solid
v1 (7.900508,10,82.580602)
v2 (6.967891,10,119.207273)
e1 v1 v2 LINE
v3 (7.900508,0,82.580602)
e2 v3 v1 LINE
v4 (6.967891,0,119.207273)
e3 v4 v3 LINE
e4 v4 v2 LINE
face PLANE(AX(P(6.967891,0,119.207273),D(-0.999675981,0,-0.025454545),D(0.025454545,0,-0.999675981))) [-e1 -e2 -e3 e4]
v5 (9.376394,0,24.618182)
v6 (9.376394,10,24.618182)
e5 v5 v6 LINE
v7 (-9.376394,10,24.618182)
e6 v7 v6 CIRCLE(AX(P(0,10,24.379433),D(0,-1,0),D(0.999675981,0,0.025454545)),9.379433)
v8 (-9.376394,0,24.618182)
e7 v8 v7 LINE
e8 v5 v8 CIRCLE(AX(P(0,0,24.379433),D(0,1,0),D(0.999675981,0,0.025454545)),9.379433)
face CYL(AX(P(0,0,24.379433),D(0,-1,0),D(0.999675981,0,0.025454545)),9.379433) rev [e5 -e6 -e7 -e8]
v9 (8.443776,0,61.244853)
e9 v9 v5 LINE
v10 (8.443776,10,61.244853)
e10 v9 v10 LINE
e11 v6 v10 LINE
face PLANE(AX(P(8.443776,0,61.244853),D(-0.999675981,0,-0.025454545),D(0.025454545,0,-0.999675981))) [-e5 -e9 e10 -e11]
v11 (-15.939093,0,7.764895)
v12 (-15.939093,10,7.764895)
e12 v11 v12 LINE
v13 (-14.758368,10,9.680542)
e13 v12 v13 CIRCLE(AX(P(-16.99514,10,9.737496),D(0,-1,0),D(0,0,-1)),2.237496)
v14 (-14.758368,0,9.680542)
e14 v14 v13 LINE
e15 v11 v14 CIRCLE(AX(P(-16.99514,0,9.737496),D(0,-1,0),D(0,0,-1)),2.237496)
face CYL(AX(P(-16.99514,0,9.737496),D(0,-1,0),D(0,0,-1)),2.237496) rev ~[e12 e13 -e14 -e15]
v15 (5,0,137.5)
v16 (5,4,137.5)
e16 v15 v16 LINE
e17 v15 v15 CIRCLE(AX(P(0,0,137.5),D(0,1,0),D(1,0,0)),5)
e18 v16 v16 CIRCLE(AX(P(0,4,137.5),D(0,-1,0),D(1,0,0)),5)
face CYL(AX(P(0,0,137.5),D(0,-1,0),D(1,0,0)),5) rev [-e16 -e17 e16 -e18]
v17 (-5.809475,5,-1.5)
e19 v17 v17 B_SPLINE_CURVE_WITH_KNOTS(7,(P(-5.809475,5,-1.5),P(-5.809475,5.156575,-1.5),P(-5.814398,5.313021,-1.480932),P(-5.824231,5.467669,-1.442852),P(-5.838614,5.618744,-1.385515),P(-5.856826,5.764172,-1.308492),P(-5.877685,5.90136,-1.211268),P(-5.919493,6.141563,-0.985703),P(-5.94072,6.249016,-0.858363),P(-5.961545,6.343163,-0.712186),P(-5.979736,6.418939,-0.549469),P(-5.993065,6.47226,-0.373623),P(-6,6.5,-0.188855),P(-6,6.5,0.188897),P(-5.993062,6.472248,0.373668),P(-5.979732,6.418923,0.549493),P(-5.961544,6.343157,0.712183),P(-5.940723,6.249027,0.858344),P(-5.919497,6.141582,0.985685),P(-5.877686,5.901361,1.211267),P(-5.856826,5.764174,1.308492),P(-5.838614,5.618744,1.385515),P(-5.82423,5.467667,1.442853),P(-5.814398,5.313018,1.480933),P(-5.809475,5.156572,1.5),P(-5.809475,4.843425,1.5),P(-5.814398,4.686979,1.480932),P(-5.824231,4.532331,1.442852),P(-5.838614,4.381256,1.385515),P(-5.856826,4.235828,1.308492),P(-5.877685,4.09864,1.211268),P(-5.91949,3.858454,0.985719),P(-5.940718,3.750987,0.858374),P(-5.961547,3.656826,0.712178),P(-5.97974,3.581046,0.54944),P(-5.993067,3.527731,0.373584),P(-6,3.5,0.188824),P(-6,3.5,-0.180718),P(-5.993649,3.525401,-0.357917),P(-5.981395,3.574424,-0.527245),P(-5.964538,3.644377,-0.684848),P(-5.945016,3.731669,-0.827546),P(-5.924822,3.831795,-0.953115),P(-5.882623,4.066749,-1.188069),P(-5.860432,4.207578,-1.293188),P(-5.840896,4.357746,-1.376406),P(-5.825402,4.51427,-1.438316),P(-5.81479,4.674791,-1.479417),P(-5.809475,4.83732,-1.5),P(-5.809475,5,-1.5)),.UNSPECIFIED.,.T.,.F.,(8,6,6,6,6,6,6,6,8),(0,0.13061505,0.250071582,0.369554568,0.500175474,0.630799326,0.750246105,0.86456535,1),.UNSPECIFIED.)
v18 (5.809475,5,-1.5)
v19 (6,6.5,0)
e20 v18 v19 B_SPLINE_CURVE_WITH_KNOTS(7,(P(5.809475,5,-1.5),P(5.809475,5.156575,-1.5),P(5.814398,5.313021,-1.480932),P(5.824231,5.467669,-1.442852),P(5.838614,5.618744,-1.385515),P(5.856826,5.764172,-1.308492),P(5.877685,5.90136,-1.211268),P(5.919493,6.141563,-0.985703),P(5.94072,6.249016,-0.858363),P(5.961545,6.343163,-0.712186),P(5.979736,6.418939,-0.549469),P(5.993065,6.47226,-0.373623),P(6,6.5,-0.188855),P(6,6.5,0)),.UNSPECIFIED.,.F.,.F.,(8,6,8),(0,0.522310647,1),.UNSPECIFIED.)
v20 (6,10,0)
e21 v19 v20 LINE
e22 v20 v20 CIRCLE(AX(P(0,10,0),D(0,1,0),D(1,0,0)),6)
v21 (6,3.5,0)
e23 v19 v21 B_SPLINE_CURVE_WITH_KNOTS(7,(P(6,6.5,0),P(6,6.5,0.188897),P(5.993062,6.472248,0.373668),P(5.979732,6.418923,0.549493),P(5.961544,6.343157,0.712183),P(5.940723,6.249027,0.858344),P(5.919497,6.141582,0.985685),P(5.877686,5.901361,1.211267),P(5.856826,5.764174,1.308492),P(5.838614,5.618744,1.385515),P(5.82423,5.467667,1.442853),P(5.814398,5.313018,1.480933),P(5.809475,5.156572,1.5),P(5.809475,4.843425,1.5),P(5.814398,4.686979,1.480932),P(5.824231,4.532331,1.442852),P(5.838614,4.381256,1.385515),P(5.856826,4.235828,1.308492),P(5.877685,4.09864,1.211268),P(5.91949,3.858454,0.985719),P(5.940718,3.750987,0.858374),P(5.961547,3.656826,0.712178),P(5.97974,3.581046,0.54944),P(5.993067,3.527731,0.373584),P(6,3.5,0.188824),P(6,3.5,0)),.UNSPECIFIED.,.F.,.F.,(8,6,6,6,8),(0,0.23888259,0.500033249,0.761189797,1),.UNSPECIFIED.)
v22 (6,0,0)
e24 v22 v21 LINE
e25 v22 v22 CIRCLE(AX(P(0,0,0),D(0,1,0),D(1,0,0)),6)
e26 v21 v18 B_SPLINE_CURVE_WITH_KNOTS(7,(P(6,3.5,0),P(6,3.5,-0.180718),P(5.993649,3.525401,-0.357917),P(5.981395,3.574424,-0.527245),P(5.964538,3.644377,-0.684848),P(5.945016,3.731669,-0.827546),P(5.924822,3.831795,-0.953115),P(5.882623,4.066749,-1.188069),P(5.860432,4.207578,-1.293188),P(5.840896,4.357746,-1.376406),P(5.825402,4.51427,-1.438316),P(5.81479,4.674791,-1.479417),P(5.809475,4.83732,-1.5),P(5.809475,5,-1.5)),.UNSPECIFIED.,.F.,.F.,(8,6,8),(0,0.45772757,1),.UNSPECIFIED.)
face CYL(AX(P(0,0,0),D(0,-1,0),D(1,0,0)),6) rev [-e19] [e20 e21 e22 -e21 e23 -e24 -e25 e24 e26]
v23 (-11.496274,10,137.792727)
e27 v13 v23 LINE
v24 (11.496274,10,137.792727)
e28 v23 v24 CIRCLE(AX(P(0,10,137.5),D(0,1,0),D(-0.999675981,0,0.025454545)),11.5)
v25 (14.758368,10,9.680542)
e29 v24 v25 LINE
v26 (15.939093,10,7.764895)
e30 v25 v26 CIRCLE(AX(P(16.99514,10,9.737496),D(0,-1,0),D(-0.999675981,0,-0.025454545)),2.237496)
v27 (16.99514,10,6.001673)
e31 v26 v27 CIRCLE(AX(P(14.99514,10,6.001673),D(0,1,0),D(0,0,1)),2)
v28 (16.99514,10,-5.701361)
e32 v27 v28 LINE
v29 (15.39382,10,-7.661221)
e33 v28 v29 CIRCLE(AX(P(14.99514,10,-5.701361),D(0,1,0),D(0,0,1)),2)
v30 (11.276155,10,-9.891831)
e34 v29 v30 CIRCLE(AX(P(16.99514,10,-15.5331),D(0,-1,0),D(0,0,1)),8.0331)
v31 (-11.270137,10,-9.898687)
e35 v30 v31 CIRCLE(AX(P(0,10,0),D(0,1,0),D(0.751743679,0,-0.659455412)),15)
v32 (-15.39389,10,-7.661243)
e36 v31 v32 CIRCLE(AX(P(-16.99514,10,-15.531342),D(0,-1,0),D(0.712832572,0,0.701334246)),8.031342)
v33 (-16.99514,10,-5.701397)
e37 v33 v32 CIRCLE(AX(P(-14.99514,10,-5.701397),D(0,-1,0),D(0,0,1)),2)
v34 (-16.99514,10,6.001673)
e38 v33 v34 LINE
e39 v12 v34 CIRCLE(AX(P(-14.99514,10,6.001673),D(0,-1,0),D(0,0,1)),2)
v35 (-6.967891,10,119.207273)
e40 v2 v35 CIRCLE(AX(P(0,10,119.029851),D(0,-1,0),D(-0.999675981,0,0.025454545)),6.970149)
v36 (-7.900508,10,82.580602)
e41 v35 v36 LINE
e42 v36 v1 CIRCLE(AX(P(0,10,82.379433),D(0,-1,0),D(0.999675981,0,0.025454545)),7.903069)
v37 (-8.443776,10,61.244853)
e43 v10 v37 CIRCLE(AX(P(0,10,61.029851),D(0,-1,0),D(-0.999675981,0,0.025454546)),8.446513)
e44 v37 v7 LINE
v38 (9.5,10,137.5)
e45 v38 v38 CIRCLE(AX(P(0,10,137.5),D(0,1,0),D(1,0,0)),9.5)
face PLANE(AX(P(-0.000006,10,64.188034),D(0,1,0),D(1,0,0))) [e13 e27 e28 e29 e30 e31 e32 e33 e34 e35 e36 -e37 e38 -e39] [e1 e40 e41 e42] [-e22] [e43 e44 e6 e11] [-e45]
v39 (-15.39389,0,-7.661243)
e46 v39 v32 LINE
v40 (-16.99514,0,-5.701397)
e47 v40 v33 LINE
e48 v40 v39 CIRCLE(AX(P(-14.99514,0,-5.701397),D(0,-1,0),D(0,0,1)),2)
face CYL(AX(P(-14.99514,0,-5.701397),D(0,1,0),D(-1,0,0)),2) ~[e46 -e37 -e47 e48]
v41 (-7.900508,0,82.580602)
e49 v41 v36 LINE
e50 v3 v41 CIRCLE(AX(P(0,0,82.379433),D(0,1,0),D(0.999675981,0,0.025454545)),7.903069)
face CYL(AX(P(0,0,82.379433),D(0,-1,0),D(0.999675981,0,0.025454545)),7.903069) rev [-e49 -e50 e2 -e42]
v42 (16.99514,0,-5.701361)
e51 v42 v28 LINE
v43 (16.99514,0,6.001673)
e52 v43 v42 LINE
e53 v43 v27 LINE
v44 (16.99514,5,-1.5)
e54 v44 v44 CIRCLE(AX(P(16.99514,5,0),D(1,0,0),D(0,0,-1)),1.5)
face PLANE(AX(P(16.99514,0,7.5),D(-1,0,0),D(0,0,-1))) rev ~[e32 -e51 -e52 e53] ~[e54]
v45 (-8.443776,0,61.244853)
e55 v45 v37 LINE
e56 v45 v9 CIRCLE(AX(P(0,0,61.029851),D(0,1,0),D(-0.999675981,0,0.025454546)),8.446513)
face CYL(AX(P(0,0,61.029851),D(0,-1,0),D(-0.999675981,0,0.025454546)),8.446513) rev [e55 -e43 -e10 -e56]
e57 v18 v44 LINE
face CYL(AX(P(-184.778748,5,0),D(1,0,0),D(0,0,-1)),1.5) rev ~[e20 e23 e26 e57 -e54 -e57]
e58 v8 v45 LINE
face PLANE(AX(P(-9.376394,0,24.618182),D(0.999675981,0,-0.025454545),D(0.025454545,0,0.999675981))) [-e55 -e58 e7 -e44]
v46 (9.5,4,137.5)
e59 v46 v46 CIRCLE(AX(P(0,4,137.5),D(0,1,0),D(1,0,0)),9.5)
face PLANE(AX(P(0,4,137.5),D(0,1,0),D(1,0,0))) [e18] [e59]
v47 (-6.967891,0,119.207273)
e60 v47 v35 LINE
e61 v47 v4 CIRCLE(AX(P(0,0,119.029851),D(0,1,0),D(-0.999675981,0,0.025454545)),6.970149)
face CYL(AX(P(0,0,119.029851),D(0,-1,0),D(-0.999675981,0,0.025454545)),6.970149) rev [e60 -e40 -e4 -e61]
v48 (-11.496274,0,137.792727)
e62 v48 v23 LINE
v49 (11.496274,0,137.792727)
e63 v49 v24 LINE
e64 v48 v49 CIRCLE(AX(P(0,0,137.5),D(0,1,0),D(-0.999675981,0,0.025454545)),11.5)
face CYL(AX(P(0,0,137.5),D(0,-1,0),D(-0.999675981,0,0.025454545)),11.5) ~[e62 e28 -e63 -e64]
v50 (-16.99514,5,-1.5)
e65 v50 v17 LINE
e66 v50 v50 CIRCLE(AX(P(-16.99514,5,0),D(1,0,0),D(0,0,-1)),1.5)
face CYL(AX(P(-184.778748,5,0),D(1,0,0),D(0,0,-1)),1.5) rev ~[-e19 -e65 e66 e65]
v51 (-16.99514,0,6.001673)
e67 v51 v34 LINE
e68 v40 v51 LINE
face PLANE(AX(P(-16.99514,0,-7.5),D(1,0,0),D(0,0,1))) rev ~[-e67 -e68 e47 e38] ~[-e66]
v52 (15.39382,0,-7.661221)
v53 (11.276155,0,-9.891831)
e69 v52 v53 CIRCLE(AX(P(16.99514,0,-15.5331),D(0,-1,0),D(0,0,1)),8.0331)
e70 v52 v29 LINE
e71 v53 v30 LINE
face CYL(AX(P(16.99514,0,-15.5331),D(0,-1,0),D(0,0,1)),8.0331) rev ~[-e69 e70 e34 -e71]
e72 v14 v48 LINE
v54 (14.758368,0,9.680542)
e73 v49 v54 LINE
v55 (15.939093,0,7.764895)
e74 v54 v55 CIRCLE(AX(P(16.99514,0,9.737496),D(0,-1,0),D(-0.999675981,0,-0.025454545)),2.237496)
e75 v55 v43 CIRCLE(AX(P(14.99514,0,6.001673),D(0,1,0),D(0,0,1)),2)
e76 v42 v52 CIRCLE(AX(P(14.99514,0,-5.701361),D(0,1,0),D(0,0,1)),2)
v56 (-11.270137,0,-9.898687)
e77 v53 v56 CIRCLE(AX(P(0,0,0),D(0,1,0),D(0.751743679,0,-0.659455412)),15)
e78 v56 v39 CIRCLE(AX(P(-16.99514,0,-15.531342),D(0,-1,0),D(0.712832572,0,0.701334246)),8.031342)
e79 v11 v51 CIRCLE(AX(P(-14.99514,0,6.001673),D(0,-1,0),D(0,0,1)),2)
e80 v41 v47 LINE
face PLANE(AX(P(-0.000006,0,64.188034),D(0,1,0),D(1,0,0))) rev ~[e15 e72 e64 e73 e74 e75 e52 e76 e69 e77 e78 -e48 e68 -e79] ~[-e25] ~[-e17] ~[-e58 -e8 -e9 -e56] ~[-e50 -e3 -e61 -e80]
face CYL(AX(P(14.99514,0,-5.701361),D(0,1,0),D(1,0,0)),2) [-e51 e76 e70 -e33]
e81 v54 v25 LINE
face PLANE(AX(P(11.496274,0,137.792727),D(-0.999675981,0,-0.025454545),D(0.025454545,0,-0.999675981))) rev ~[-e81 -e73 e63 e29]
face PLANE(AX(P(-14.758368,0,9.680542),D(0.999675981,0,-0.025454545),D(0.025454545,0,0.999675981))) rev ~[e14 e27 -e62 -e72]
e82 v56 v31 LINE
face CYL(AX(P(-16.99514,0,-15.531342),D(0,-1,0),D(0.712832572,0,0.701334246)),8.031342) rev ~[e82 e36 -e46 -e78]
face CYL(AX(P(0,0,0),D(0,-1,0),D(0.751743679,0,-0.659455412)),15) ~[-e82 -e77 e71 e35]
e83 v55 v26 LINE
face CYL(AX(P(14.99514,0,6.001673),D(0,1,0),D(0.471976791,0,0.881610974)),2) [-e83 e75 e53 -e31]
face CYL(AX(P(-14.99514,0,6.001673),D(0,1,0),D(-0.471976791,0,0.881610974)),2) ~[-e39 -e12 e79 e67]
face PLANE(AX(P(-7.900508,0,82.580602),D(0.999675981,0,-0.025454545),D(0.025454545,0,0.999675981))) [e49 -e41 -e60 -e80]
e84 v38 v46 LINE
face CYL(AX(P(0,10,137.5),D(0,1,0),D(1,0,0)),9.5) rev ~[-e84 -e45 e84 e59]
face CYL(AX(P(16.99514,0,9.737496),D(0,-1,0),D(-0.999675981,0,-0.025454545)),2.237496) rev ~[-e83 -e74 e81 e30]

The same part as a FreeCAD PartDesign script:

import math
import FreeCAD as App
import Part
import Sketcher


def edges_at(feature, points):
    """Names of the edges that pass closest to the given points."""
    edges = feature.Shape.Edges
    near = lambda p: min(range(len(edges)), key=lambda i: edges[i].distToShape(Part.Vertex(*p))[0])
    return sorted({f"Edge{near(p) + 1}" for p in points})

doc = App.newDocument("Part")
body = doc.addObject("PartDesign::Body", "Body")

# Sketch on XZ plane
sketch1 = body.newObject("Sketcher::SketchObject", "Sketch")
sketch1.AttachmentSupport = (doc.getObject("XZ_Plane"), [""])
sketch1.MapMode = "FlatFace"
sketch1.addGeometry([
    Part.LineSegment(App.Vector(-14.8, 9.7, 0), App.Vector(-11.5, 137.8, 0)),  # 0
    Part.ArcOfCircle(Part.Circle(App.Vector(0, 137.5, 0), App.Vector(0, 0, 1), 11.5), math.radians(1), math.radians(179)),  # 1
    Part.LineSegment(App.Vector(11.5, 137.8, 0), App.Vector(14.8, 9.7, 0)),  # 2
    Part.ArcOfCircle(Part.Circle(App.Vector(17, 9.7, 0), App.Vector(0, 0, 1), 2.2), math.radians(-179), math.radians(-90)),  # 3
    Part.LineSegment(App.Vector(17, 7.5, 0), App.Vector(17, -7.5, 0)),  # 4
    Part.ArcOfCircle(Part.Circle(App.Vector(17, -15.5, 0), App.Vector(0, 0, 1), 8), math.radians(90), math.radians(135)),  # 5
    Part.ArcOfCircle(Part.Circle(App.Vector(0, 0, 0), App.Vector(0, 0, 1), 15), math.radians(-139), math.radians(-41)),  # 6
    Part.ArcOfCircle(Part.Circle(App.Vector(-17, -15.5, 0), App.Vector(0, 0, 1), 8), math.radians(45), math.radians(90)),  # 7
    Part.LineSegment(App.Vector(-17, -7.5, 0), App.Vector(-17, 7.5, 0)),  # 8
    Part.ArcOfCircle(Part.Circle(App.Vector(-17, 9.7, 0), App.Vector(0, 0, 1), 2.2), math.radians(-90), math.radians(-1)),  # 9
    Part.Circle(App.Vector(0, 137.5, 0), App.Vector(0, 0, 1), 5),  # 10
    Part.Circle(App.Vector(0, 0, 0), App.Vector(0, 0, 1), 6),  # 11
], False)
sketch1.addConstraint([
    Sketcher.Constraint("Tangent", 0, 2, 1, 2),
    Sketcher.Constraint("Tangent", 1, 1, 2, 1),
    Sketcher.Constraint("Tangent", 2, 2, 3, 1),
    Sketcher.Constraint("Coincident", 3, 2, 4, 1),
    Sketcher.Constraint("Coincident", 4, 2, 5, 1),
    Sketcher.Constraint("Coincident", 5, 2, 6, 2),
    Sketcher.Constraint("Coincident", 6, 1, 7, 1),
    Sketcher.Constraint("Coincident", 7, 2, 8, 1),
    Sketcher.Constraint("Coincident", 8, 2, 9, 1),
    Sketcher.Constraint("Tangent", 9, 2, 0, 1),
    Sketcher.Constraint("Vertical", 4),
    Sketcher.Constraint("Vertical", 8),
    Sketcher.Constraint("Coincident", 6, 3, -1, 1),
    Sketcher.Constraint("Coincident", 11, 3, -1, 1),
    Sketcher.Constraint("Coincident", 10, 3, 1, 3),
    Sketcher.Constraint("Equal", 3, 9),
    Sketcher.Constraint("Symmetric", 3, 2, 7, 2, -1, 1),
    Sketcher.Constraint("Symmetric", 3, 3, 9, 3, -2),
    Sketcher.Constraint("PointOnObject", 1, 3, -2),
    Sketcher.Constraint("Horizontal", 4, 2, 7, 2),
    Sketcher.Constraint("Vertical", 3, 3, 5, 3),
    Sketcher.Constraint("Vertical", 7, 3, 9, 3),
    Sketcher.Constraint("Vertical", 5, 3, 3, 2),
    Sketcher.Constraint("Diameter", 10, 10.0),
    Sketcher.Constraint("Diameter", 11, 12.0),
    Sketcher.Constraint("Radius", 6, 15.0),
    Sketcher.Constraint("Radius", 1, 11.5),
    Sketcher.Constraint("DistanceY", 4, 2, 4, 1, 15.0),
    Sketcher.Constraint("DistanceY", -1, 1, 1, 3, 137.5),
    Sketcher.Constraint("Radius", 5, 8.0331),
    Sketcher.Constraint("Radius", 3, 2.237496),
    Sketcher.Constraint("Radius", 7, 8.031342),
    Sketcher.Constraint("Distance", 0, 128.15371),
])
pad1 = body.newObject("PartDesign::Pad", "Pad")
pad1.Profile = sketch1
pad1.Length = 10
pad1.Reversed = True

# Sketch on XZ plane
sketch2 = body.newObject("Sketcher::SketchObject", "Sketch001")
sketch2.AttachmentSupport = (doc.getObject("XZ_Plane"), [""])
sketch2.MapMode = "FlatFace"
sketch2.AttachmentOffset = App.Placement(App.Vector(0, 0, -10), App.Rotation())
sketch2.addGeometry(Part.Circle(App.Vector(0, 138, 0), App.Vector(0, 0, 1), 10), False)
sketch2.addConstraint([
    Sketcher.Constraint("PointOnObject", 0, 3, -2),
    Sketcher.Constraint("Diameter", 0, 19.0),
    Sketcher.Constraint("DistanceY", -1, 1, 0, 3, 137.5),
])
pocket1 = body.newObject("PartDesign::Pocket", "Pocket")
pocket1.Profile = sketch2
pocket1.Length = 6
pocket1.Reversed = True

# Sketch on XZ plane
sketch3 = body.newObject("Sketcher::SketchObject", "Sketch002")
sketch3.AttachmentSupport = (doc.getObject("XZ_Plane"), [""])
sketch3.MapMode = "FlatFace"
sketch3.addGeometry([
    Part.LineSegment(App.Vector(-9, 25, 0), App.Vector(-8, 61, 0)),  # 0
    Part.ArcOfCircle(Part.Circle(App.Vector(0, 61, 0), App.Vector(0, 0, 1), 8), math.radians(1), math.radians(179)),  # 1
    Part.LineSegment(App.Vector(8, 61, 0), App.Vector(9, 25, 0)),  # 2
    Part.ArcOfCircle(Part.Circle(App.Vector(0, 24, 0), App.Vector(0, 0, 1), 9), math.radians(179), math.radians(361)),  # 3
    Part.LineSegment(App.Vector(-8, 83, 0), App.Vector(-7, 119, 0)),  # 4
    Part.ArcOfCircle(Part.Circle(App.Vector(0, 119, 0), App.Vector(0, 0, 1), 7), math.radians(1), math.radians(179)),  # 5
    Part.LineSegment(App.Vector(7, 119, 0), App.Vector(8, 83, 0)),  # 6
    Part.ArcOfCircle(Part.Circle(App.Vector(0, 82, 0), App.Vector(0, 0, 1), 8), math.radians(179), math.radians(361)),  # 7
], False)
sketch3.addConstraint([
    Sketcher.Constraint("Tangent", 0, 2, 1, 2),
    Sketcher.Constraint("Tangent", 1, 1, 2, 1),
    Sketcher.Constraint("Tangent", 2, 2, 3, 2),
    Sketcher.Constraint("Tangent", 3, 1, 0, 1),
    Sketcher.Constraint("Tangent", 4, 2, 5, 2),
    Sketcher.Constraint("Tangent", 5, 1, 6, 1),
    Sketcher.Constraint("Tangent", 6, 2, 7, 2),
    Sketcher.Constraint("Tangent", 7, 1, 4, 1),
    Sketcher.Constraint("Symmetric", 0, 2, 1, 1, -2),
    Sketcher.Constraint("Symmetric", 4, 2, 5, 1, -2),
    Sketcher.Constraint("Parallel", 0, 4),
    Sketcher.Constraint("Equal", 2, 4),
    Sketcher.Constraint("DistanceY", 1, 3, 5, 3, 58.0),
    Sketcher.Constraint("Radius", 5, 6.970149),
    Sketcher.Constraint("Radius", 7, 7.903069),
    Sketcher.Constraint("Radius", 1, 8.446513),
    Sketcher.Constraint("DistanceY", -1, 1, 6, 2, 82.580602),
    Sketcher.Constraint("DistanceY", -1, 1, 1, 3, 61.029851),
])
pocket2 = body.newObject("PartDesign::Pocket", "Pocket001")
pocket2.Profile = sketch3
pocket2.Type = "ThroughAll"
doc.recompute()

fillet = body.newObject("PartDesign::Fillet", "Fillet")
fillet.Base = (pocket2, edges_at(pocket2, [
    (-16.995, 5, 7.5),
    (-16.995, 5, -7.5),
    (16.995, 5, -7.5),
    (16.995, 5, 7.5),
]))
fillet.Radius = 2

# Sketch on YZ plane
sketch4 = body.newObject("Sketcher::SketchObject", "Sketch003")
sketch4.AttachmentSupport = (doc.getObject("YZ_Plane"), [""])
sketch4.MapMode = "FlatFace"
sketch4.AttachmentOffset = App.Placement(App.Vector(0, 0, -16.99514), App.Rotation())
sketch4.addGeometry(Part.Circle(App.Vector(5, 0, 0), App.Vector(0, 0, 1), 1.5), False)
sketch4.addConstraint([
    Sketcher.Constraint("PointOnObject", 0, 3, -1),
    Sketcher.Constraint("Diameter", 0, 3.0),
    Sketcher.Constraint("DistanceX", -1, 1, 0, 3, 5.0),
])
doc.recompute()
hole = body.newObject("PartDesign::Hole", "Hole")
hole.Profile = sketch4
hole.ThreadType = "None"
hole.Diameter = 3
hole.DepthType = "ThroughAll"
hole.Reversed = True

doc.recompute()
